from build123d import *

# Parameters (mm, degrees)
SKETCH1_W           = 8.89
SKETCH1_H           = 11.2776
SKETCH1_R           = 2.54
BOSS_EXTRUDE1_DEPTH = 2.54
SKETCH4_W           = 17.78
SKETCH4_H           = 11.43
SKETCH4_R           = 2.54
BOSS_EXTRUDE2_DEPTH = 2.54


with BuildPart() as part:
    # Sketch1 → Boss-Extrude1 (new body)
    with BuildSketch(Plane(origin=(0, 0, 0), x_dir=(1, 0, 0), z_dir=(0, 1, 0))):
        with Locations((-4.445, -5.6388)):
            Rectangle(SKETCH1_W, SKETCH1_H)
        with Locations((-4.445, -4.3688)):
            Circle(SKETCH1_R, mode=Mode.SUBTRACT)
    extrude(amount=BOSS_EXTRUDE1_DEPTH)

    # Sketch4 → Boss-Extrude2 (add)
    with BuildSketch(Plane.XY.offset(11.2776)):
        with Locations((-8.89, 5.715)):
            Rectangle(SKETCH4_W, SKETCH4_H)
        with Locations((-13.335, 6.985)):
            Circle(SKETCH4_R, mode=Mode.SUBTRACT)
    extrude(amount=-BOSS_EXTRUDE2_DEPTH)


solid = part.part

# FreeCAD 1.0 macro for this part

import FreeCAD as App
import Part
import Sketcher
Q = App.Units.Quantity

doc = App.newDocument("Part")
body = doc.addObject("PartDesign::Body", "Body")

sketch1 = doc.addObject("Sketcher::SketchObject", "Sketch")
body.addObject(sketch1)
sketch1.AttachmentSupport = (doc.XZ_Plane, [""])
sketch1.MapMode = "FlatFace"
sketch1.addGeometry(Part.LineSegment(App.Vector(-8.9, 0, 0), App.Vector(-8.9, 11.3, 0)), False)
sketch1.addGeometry(Part.LineSegment(App.Vector(-8.9, 11.3, 0), App.Vector(0, 11.3, 0)), False)
sketch1.addGeometry(Part.LineSegment(App.Vector(0, 11.3, 0), App.Vector(0, 0, 0)), False)
sketch1.addGeometry(Part.LineSegment(App.Vector(0, 0, 0), App.Vector(-8.9, 0, 0)), False)
sketch1.addGeometry(Part.Circle(App.Vector(-4.4, 4.4, 0), App.Vector(0, 0, 1), 2.5), False)
sketch1.addConstraint(Sketcher.Constraint("Coincident", 0, 2, 1, 1))
sketch1.addConstraint(Sketcher.Constraint("Coincident", 1, 2, 2, 1))
sketch1.addConstraint(Sketcher.Constraint("Coincident", 2, 2, 3, 1))
sketch1.addConstraint(Sketcher.Constraint("Coincident", 3, 2, 0, 1))
sketch1.addConstraint(Sketcher.Constraint("Vertical", 0))
sketch1.addConstraint(Sketcher.Constraint("Horizontal", 1))
sketch1.addConstraint(Sketcher.Constraint("Vertical", 2))
sketch1.addConstraint(Sketcher.Constraint("Horizontal", 3))
sketch1.addConstraint(Sketcher.Constraint("Coincident", 2, 2, -1, 1))
sketch1.addConstraint(Sketcher.Constraint("Diameter", 4, Q("0.2 in")))
sketch1.addConstraint(Sketcher.Constraint("DistanceX", 1, 1, 1, 2, Q("0.35 in")))
sketch1.addConstraint(Sketcher.Constraint("DistanceY", 0, 1, 0, 2, Q("0.444 in")))
sketch1.addConstraint(Sketcher.Constraint("DistanceX", 4, 3, -1, 1, Q("0.175 in")))
sketch1.addConstraint(Sketcher.Constraint("DistanceY", -1, 1, 4, 3, Q("0.172 in")))
pad1 = doc.addObject("PartDesign::Pad", "Pad")
body.addObject(pad1)
pad1.Profile = sketch1
pad1.Length = Q("0.1 in")
pad1.Reversed = True

sketch2 = doc.addObject("Sketcher::SketchObject", "Sketch001")
body.addObject(sketch2)
sketch2.AttachmentSupport = (doc.XY_Plane, [""])
sketch2.MapMode = "FlatFace"
sketch2.AttachmentOffset = App.Placement(App.Vector(0, 0, 0.444 * 25.4), App.Rotation())
sketch2.addGeometry(Part.LineSegment(App.Vector(-17.8, 11.4, 0), App.Vector(-17.8, 0, 0)), False)
sketch2.addGeometry(Part.LineSegment(App.Vector(-17.8, 0, 0), App.Vector(0, 0, 0)), False)
sketch2.addGeometry(Part.LineSegment(App.Vector(0, 0, 0), App.Vector(0, 11.4, 0)), False)
sketch2.addGeometry(Part.LineSegment(App.Vector(0, 11.4, 0), App.Vector(-17.8, 11.4, 0)), False)
sketch2.addGeometry(Part.Circle(App.Vector(-13.3, 7, 0), App.Vector(0, 0, 1), 2.5), False)
sketch2.addConstraint(Sketcher.Constraint("Coincident", 0, 2, 1, 1))
sketch2.addConstraint(Sketcher.Constraint("Coincident", 1, 2, 2, 1))
sketch2.addConstraint(Sketcher.Constraint("Coincident", 2, 2, 3, 1))
sketch2.addConstraint(Sketcher.Constraint("Coincident", 3, 2, 0, 1))
sketch2.addConstraint(Sketcher.Constraint("Vertical", 0))
sketch2.addConstraint(Sketcher.Constraint("Horizontal", 1))
sketch2.addConstraint(Sketcher.Constraint("Vertical", 2))
sketch2.addConstraint(Sketcher.Constraint("Horizontal", 3))
sketch2.addConstraint(Sketcher.Constraint("Coincident", 1, 2, -1, 1))
sketch2.addConstraint(Sketcher.Constraint("Diameter", 4, Q("0.2 in")))
sketch2.addConstraint(Sketcher.Constraint("DistanceX", 1, 1, 1, 2, Q("0.7 in")))
sketch2.addConstraint(Sketcher.Constraint("DistanceY", 0, 2, 0, 1, Q("0.45 in")))
sketch2.addConstraint(Sketcher.Constraint("DistanceX", 4, 3, -1, 1, Q("0.525 in")))
sketch2.addConstraint(Sketcher.Constraint("DistanceY", -1, 1, 4, 3, Q("0.275 in")))
pad2 = doc.addObject("PartDesign::Pad", "Pad001")
body.addObject(pad2)
pad2.Profile = sketch2
pad2.Length = Q("0.1 in")
pad2.Reversed = True

doc.recompute()
